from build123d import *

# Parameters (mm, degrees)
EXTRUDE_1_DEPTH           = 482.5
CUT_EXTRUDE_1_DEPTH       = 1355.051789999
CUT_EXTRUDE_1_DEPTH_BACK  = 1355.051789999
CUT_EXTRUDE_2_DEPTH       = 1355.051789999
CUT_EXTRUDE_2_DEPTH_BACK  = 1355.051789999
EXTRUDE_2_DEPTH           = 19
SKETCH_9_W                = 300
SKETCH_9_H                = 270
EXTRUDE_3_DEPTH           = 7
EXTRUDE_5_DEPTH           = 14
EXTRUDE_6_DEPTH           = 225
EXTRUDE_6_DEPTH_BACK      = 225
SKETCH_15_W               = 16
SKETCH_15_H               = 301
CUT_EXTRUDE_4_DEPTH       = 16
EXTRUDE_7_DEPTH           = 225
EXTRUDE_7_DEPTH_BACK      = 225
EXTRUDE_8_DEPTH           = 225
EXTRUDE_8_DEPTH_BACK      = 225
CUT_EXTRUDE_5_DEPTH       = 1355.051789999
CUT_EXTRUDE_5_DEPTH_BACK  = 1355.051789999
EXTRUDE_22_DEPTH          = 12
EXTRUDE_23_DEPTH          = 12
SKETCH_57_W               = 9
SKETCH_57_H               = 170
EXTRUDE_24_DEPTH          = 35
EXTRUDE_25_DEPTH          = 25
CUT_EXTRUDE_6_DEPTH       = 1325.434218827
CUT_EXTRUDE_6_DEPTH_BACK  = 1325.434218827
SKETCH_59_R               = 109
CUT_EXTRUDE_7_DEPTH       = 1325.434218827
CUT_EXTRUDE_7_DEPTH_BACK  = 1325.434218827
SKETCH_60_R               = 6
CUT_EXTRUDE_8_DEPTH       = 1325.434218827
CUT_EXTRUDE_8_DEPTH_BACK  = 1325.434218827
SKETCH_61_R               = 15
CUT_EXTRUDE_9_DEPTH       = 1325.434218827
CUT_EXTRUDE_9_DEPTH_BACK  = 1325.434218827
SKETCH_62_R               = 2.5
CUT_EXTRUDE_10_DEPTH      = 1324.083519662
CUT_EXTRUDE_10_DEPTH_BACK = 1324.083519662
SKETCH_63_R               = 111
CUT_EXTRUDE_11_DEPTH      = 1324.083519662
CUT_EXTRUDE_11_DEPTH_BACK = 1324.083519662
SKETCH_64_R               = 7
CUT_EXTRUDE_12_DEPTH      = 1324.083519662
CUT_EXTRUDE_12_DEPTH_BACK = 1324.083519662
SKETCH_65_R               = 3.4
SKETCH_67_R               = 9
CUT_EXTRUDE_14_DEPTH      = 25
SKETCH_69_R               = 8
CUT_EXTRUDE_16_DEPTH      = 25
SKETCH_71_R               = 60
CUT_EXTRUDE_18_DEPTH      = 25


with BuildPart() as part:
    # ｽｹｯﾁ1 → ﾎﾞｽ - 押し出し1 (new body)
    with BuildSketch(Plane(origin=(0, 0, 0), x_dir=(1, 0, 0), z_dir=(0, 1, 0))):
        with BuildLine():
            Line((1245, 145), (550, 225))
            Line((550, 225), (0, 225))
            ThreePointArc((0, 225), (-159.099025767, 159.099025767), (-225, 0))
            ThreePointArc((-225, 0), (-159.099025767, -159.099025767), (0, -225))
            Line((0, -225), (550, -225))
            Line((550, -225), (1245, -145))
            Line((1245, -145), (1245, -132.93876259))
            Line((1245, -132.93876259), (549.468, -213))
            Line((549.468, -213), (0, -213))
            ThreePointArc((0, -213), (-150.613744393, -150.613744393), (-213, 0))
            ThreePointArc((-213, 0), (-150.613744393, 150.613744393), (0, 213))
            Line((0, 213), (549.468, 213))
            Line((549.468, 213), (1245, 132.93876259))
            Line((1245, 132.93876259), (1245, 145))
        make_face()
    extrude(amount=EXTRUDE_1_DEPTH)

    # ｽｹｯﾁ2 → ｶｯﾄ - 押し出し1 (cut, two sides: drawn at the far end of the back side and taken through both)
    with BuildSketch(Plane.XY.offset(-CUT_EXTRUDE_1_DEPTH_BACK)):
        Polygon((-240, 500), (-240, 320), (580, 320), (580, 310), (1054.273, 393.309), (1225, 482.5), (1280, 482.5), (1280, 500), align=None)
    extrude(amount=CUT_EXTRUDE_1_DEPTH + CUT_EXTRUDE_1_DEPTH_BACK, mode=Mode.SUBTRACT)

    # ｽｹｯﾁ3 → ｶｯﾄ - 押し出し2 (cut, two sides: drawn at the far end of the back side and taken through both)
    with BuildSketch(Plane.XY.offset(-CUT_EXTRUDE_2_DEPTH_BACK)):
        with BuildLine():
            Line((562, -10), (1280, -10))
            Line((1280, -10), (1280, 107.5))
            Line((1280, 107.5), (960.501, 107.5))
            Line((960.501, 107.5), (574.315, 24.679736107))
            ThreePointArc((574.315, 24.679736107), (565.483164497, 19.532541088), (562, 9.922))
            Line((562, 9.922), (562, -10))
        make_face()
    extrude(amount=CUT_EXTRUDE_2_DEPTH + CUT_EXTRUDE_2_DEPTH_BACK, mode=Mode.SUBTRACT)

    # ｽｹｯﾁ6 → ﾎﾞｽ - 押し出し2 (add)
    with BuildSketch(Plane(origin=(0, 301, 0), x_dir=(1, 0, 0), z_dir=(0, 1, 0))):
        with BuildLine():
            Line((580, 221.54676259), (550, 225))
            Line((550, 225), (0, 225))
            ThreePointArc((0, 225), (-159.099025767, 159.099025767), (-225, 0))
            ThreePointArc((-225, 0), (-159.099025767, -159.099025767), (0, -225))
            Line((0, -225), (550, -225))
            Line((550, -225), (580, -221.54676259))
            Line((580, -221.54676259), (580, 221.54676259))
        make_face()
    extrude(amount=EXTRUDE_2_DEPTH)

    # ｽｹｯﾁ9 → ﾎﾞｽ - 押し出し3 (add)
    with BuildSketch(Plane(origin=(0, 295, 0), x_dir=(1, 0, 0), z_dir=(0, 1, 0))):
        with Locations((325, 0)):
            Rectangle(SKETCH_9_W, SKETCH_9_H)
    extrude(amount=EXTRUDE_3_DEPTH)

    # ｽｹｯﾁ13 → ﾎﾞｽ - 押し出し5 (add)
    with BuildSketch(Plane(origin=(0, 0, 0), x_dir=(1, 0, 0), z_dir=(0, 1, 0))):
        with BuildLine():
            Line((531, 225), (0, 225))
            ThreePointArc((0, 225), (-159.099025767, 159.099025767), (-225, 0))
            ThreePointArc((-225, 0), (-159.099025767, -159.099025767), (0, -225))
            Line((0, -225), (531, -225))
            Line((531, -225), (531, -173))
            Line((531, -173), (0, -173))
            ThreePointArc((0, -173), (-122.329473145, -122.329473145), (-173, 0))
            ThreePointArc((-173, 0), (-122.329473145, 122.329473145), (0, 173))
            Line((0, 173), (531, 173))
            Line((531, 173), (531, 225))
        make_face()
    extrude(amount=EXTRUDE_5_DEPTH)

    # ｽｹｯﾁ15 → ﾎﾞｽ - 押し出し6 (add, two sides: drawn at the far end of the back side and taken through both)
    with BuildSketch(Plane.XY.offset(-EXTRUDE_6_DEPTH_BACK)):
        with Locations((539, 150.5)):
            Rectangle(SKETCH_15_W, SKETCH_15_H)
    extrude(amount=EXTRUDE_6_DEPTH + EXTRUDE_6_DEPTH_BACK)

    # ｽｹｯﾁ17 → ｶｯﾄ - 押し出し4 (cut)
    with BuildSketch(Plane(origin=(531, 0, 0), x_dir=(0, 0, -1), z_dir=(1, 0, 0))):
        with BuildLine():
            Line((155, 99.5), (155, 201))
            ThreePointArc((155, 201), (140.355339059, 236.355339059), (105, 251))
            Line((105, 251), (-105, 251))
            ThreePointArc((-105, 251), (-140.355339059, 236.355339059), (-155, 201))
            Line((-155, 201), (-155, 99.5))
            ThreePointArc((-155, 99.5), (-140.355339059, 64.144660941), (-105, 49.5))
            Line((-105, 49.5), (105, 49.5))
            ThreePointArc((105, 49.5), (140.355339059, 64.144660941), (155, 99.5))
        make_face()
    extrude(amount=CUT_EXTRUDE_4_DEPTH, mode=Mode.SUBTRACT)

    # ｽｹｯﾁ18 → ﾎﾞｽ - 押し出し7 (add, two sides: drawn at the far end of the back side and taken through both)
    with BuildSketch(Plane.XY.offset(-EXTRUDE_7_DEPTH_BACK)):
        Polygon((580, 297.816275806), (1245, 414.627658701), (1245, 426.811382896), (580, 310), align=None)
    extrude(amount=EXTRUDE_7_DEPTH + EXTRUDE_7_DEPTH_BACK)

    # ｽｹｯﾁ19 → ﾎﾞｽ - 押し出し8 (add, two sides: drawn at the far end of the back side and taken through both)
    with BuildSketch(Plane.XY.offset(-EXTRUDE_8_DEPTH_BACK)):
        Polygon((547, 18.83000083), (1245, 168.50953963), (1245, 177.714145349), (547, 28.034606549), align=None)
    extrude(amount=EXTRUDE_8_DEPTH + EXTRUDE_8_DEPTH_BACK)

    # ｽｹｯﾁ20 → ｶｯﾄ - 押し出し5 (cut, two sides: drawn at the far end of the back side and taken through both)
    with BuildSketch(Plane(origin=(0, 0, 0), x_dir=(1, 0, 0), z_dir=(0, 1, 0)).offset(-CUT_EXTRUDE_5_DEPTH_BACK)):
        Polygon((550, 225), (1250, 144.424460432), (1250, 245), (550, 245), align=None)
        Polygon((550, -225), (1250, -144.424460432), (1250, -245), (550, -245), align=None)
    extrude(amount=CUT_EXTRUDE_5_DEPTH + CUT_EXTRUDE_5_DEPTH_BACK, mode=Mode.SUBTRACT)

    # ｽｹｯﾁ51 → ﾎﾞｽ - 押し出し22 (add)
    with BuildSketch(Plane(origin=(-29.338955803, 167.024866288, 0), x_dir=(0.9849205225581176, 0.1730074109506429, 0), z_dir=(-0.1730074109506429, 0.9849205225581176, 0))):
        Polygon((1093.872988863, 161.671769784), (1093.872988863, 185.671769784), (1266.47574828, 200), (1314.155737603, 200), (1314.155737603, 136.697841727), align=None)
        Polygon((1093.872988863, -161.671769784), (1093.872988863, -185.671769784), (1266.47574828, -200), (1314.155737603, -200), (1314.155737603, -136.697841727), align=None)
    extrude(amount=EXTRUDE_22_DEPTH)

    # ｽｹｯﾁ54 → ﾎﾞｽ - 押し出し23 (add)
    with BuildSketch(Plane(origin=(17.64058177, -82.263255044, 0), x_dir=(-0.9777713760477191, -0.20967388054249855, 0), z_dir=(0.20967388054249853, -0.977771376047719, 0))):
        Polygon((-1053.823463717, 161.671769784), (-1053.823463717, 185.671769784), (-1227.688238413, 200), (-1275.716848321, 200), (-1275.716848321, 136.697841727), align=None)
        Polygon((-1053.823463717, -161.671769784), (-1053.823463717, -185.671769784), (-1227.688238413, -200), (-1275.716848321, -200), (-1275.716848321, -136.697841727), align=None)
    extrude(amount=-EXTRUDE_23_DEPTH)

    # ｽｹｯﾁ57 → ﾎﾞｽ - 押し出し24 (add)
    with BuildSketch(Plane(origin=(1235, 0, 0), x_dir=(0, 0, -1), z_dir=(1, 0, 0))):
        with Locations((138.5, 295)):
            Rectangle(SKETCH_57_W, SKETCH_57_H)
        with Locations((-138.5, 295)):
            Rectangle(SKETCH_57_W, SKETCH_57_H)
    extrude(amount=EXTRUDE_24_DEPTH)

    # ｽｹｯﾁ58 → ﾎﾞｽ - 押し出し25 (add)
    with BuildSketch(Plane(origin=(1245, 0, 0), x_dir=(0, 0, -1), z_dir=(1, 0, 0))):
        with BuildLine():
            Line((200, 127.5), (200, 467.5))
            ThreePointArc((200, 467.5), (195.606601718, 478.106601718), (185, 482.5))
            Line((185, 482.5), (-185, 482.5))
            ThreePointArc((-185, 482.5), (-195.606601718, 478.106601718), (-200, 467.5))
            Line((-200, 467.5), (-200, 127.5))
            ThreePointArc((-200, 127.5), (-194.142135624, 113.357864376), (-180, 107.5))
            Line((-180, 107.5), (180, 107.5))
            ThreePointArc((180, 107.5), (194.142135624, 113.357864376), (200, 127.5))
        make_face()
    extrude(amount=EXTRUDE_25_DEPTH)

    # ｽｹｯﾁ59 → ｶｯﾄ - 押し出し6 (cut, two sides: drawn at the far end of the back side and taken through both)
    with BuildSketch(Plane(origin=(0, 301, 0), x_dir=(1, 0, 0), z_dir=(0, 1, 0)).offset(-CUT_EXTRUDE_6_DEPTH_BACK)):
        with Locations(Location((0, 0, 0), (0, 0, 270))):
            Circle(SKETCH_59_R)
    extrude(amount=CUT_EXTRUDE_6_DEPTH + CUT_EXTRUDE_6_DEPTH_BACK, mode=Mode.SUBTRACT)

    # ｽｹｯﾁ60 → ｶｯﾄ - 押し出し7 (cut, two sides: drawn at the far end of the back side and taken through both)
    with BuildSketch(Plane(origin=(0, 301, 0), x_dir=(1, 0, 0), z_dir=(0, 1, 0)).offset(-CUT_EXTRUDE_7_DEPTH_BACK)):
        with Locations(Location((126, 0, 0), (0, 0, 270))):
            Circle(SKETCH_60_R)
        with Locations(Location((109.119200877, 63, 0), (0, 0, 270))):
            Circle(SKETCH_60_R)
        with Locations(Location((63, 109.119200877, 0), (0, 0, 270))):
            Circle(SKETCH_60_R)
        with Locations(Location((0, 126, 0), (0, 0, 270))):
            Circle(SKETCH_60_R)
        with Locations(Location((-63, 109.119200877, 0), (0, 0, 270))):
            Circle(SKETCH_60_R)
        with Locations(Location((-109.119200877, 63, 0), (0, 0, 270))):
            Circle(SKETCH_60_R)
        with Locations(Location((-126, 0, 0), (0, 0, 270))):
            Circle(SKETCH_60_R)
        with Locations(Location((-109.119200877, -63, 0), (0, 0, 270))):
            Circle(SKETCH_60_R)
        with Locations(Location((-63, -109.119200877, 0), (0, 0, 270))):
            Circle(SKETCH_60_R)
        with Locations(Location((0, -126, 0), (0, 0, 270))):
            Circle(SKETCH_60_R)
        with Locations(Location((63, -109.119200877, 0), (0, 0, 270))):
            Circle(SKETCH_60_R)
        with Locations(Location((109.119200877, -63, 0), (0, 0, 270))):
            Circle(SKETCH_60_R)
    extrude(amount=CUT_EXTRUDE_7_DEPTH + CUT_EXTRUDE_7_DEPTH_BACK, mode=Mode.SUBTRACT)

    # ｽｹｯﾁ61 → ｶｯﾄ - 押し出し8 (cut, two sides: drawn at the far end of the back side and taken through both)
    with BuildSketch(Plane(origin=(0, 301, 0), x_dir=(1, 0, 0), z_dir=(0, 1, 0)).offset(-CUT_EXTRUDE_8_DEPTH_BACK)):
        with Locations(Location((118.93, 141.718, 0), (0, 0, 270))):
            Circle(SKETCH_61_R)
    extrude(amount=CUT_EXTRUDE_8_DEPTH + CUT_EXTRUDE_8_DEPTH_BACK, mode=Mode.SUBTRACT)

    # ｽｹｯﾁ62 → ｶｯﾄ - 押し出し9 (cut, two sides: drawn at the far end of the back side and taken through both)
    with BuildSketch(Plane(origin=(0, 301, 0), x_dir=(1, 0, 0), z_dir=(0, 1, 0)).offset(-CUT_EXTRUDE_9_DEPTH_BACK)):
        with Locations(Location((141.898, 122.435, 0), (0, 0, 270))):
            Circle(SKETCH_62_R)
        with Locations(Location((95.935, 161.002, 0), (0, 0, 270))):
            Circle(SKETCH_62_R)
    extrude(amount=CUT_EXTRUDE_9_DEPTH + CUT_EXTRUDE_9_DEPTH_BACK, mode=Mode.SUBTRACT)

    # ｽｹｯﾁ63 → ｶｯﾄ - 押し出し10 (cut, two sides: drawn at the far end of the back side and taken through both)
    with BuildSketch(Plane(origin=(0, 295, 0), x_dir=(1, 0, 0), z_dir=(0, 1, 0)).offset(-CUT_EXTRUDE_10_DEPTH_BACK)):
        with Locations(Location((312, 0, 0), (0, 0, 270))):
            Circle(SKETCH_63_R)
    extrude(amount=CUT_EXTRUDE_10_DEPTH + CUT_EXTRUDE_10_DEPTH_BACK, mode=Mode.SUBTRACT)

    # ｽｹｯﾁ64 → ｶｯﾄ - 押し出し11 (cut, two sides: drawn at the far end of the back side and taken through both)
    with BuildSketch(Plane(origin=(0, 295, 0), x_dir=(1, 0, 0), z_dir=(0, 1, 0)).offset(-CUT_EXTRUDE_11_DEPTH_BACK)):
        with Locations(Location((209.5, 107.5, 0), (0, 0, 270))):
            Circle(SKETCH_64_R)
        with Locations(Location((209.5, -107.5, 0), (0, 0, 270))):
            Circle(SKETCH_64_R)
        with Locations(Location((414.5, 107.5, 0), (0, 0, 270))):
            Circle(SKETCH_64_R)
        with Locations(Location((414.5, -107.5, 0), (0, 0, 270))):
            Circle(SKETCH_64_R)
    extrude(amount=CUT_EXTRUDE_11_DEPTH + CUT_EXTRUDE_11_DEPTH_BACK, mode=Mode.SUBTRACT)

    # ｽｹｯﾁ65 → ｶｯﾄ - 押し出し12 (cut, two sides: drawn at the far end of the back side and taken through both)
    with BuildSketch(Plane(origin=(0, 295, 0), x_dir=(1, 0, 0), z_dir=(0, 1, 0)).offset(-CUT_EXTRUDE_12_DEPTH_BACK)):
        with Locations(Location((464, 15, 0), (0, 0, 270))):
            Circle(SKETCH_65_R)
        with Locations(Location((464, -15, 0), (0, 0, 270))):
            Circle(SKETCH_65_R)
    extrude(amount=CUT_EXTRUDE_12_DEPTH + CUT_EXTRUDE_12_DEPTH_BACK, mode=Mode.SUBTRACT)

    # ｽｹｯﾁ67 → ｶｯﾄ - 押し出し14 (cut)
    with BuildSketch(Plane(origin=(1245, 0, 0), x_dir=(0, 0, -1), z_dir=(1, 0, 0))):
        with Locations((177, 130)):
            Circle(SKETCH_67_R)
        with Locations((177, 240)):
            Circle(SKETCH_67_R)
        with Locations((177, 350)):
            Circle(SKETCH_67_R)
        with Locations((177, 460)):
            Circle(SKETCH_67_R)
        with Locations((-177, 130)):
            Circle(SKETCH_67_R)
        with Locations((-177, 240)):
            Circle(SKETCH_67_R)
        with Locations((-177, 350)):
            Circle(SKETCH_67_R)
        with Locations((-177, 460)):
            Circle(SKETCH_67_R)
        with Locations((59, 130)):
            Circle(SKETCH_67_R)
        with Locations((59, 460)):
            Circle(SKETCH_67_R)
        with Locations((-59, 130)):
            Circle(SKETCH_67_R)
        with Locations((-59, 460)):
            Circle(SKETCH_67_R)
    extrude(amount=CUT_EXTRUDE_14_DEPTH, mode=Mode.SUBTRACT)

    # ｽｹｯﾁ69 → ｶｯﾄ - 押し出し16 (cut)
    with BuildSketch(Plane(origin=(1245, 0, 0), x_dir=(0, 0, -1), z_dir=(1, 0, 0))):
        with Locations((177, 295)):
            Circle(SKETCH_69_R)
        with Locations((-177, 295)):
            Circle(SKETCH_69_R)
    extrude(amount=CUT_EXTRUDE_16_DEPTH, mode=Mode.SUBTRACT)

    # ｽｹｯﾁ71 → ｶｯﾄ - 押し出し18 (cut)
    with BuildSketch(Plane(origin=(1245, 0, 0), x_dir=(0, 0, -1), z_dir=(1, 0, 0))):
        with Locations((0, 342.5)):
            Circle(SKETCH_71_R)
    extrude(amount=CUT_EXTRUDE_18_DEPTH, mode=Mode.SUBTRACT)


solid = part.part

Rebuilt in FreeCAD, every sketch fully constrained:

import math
import FreeCAD as App
import Part
import Sketcher
from FreeCAD import Vector


def add_polygon(sketch, points):
    """Adds a closed chain of lines whose ends are joined by coincident constraints."""
    first, n = sketch.GeometryCount, len(points)
    for a, b in zip(points, points[1:] + points[:1]):
        sketch.addGeometry(Part.LineSegment(App.Vector(*a, 0), App.Vector(*b, 0)), False)
    for i in range(n):
        sketch.addConstraint(Sketcher.Constraint("Coincident", first + i, 2, first + (i + 1) % n, 1))

doc = App.newDocument("Part")
body = doc.addObject("PartDesign::Body", "Body")

sketch1 = doc.addObject("Sketcher::SketchObject", "Sketch")
body.addObject(sketch1)
sketch1.AttachmentSupport = (doc.XZ_Plane, [""])
sketch1.MapMode = "FlatFace"
sketch1.addGeometry([
    Part.LineSegment(Vector(1245, -145, 0), Vector(550, -225, 0)),
    Part.LineSegment(Vector(550, -225, 0), Vector(0, -225, 0)),
    Part.ArcOfCircle(Part.Circle(Vector(0, 0, 0), Vector(0, 0, 1), 225), math.radians(90), math.radians(270)),
    Part.LineSegment(Vector(0, 225, 0), Vector(550, 225, 0)),
    Part.LineSegment(Vector(550, 225, 0), Vector(1245, 145, 0)),
    Part.LineSegment(Vector(1245, 145, 0), Vector(1245, 132.938763, 0)),
    Part.LineSegment(Vector(1245, 132.938763, 0), Vector(549.468, 213, 0)),
    Part.LineSegment(Vector(549.468, 213, 0), Vector(0, 213, 0)),
    Part.ArcOfCircle(Part.Circle(Vector(0, 0, 0), Vector(0, 0, 1), 213), math.radians(90), math.radians(180)),
    Part.ArcOfCircle(Part.Circle(Vector(0, 0, 0), Vector(0, 0, 1), 213), math.radians(180), math.radians(270)),
    Part.LineSegment(Vector(0, -213, 0), Vector(549.468, -213, 0)),
    Part.LineSegment(Vector(549.468, -213, 0), Vector(1245, -132.938763, 0)),
    Part.LineSegment(Vector(1245, -132.938763, 0), Vector(1245, -145, 0)),
], False)
sketch1.addConstraint([
    Sketcher.Constraint("Coincident", 0, 2, 1, 1),
    Sketcher.Constraint("Tangent", 1, 2, 2, 2),
    Sketcher.Constraint("Tangent", 2, 1, 3, 1),
    Sketcher.Constraint("Coincident", 3, 2, 4, 1),
    Sketcher.Constraint("Coincident", 4, 2, 5, 1),
    Sketcher.Constraint("Coincident", 5, 2, 6, 1),
    Sketcher.Constraint("Coincident", 6, 2, 7, 1),
    Sketcher.Constraint("Tangent", 7, 2, 8, 1),
    Sketcher.Constraint("Tangent", 8, 2, 9, 1),
    Sketcher.Constraint("Tangent", 9, 2, 10, 1),
    Sketcher.Constraint("Coincident", 10, 2, 11, 1),
    Sketcher.Constraint("Coincident", 11, 2, 12, 1),
    Sketcher.Constraint("Coincident", 12, 2, 0, 1),
    Sketcher.Constraint("Horizontal", 1),
    Sketcher.Constraint("Horizontal", 3),
    Sketcher.Constraint("Vertical", 5),
    Sketcher.Constraint("Horizontal", 7),
    Sketcher.Constraint("Horizontal", 10),
    Sketcher.Constraint("Vertical", 12),
    Sketcher.Constraint("Coincident", 2, 3, -1, 1),
    Sketcher.Constraint("Coincident", 8, 3, -1, 1),
    Sketcher.Constraint("Equal", 8, 9),
    Sketcher.Constraint("Symmetric", 5, 2, 11, 2, -1),
    Sketcher.Constraint("PointOnObject", 8, 2, -1),
    Sketcher.Constraint("Parallel", 4, 6),
    Sketcher.Constraint("Parallel", 0, 11),
    Sketcher.Constraint("Vertical", 0, 2, 3, 2),
    Sketcher.Constraint("Vertical", 6, 2, 10, 2),
    Sketcher.Constraint("Radius", 2, 225.0),
    Sketcher.Constraint("Radius", 8, 213.0),
    Sketcher.Constraint("DistanceX", 1, 2, 1, 1, 550.0),
    Sketcher.Constraint("DistanceX", -1, 1, 4, 2, 1245.0),
    Sketcher.Constraint("DistanceY", -1, 1, 4, 2, 145.0),
    Sketcher.Constraint("DistanceX", 7, 2, 7, 1, 549.468),
])
pad1 = doc.addObject("PartDesign::Pad", "Pad")
body.addObject(pad1)
pad1.Profile = sketch1
pad1.Length = 482.5
pad1.Reversed = True

sketch2 = doc.addObject("Sketcher::SketchObject", "Sketch001")
body.addObject(sketch2)
sketch2.AttachmentSupport = (doc.XY_Plane, [""])
sketch2.MapMode = "FlatFace"
add_polygon(sketch2, [(-240, 500), (-240, 320), (580, 320), (580, 310), (1054.273, 393.309), (1225, 482.5), (1280, 482.5), (1280, 500)])
sketch2.addConstraint([
    Sketcher.Constraint("Vertical", 0),
    Sketcher.Constraint("Horizontal", 1),
    Sketcher.Constraint("Vertical", 2),
    Sketcher.Constraint("Horizontal", 5),
    Sketcher.Constraint("Vertical", 6),
    Sketcher.Constraint("Horizontal", 7),
    Sketcher.Constraint("DistanceX", 1, 1, 1, 2, 820.0),
    Sketcher.Constraint("DistanceX", 5, 1, 5, 2, 55.0),
    Sketcher.Constraint("DistanceX", 7, 2, 7, 1, 1520.0),
    Sketcher.Constraint("DistanceY", 0, 2, 0, 1, 180.0),
    Sketcher.Constraint("DistanceY", 2, 2, 2, 1, 10.0),
    Sketcher.Constraint("DistanceY", 6, 1, 6, 2, 17.5),
    Sketcher.Constraint("DistanceX", 0, 2, -1, 1, 240.0),
    Sketcher.Constraint("DistanceY", -1, 1, 0, 2, 320.0),
    Sketcher.Constraint("DistanceX", -1, 1, 3, 2, 1054.273),
    Sketcher.Constraint("DistanceY", -1, 1, 3, 2, 393.309),
])
pocket1 = doc.addObject("PartDesign::Pocket", "Pocket")
body.addObject(pocket1)
pocket1.Profile = sketch2
pocket1.Type = "ThroughAll"
pocket1.Midplane = True

sketch3 = doc.addObject("Sketcher::SketchObject", "Sketch002")
body.addObject(sketch3)
sketch3.AttachmentSupport = (doc.XY_Plane, [""])
sketch3.MapMode = "FlatFace"
sketch3.addGeometry([
    Part.LineSegment(Vector(562, -10, 0), Vector(1280, -10, 0)),
    Part.LineSegment(Vector(1280, -10, 0), Vector(1280, 107.5, 0)),
    Part.LineSegment(Vector(1280, 107.5, 0), Vector(960.501, 107.5, 0)),
    Part.LineSegment(Vector(960.501, 107.5, 0), Vector(574.315, 24.679736, 0)),
    Part.ArcOfCircle(Part.Circle(Vector(577, 9.922, 0), Vector(0, 0, 1), 15), math.radians(100.311518), math.radians(180)),
    Part.LineSegment(Vector(562, 9.922, 0), Vector(562, -10, 0)),
], False)
sketch3.addConstraint([
    Sketcher.Constraint("Coincident", 0, 2, 1, 1),
    Sketcher.Constraint("Coincident", 1, 2, 2, 1),
    Sketcher.Constraint("Coincident", 2, 2, 3, 1),
    Sketcher.Constraint("Coincident", 3, 2, 4, 1),
    Sketcher.Constraint("Tangent", 4, 2, 5, 1),
    Sketcher.Constraint("Coincident", 5, 2, 0, 1),
    Sketcher.Constraint("Horizontal", 0),
    Sketcher.Constraint("Vertical", 1),
    Sketcher.Constraint("Horizontal", 2),
    Sketcher.Constraint("Vertical", 5),
    Sketcher.Constraint("Radius", 4, 15.0),
    Sketcher.Constraint("DistanceX", 0, 1, 0, 2, 718.0),
    Sketcher.Constraint("DistanceY", 1, 1, 1, 2, 117.5),
    Sketcher.Constraint("DistanceX", -1, 1, 4, 3, 577.0),
    Sketcher.Constraint("DistanceY", 0, 2, -1, 1, 10.0),
    Sketcher.Constraint("DistanceX", 2, 2, 2, 1, 319.499),
    Sketcher.Constraint("DistanceY", 5, 2, 5, 1, 19.922),
    Sketcher.Constraint("DistanceX", -1, 1, 3, 2, 574.315),
])
pocket2 = doc.addObject("PartDesign::Pocket", "Pocket001")
body.addObject(pocket2)
pocket2.Profile = sketch3
pocket2.Type = "ThroughAll"
pocket2.Midplane = True

sketch4 = doc.addObject("Sketcher::SketchObject", "Sketch003")
body.addObject(sketch4)
sketch4.AttachmentSupport = (doc.XZ_Plane, [""])
sketch4.MapMode = "FlatFace"
sketch4.AttachmentOffset = App.Placement(Vector(0, 0, -301), App.Rotation())
sketch4.addGeometry([
    Part.LineSegment(Vector(580, -221.546763, 0), Vector(550, -225, 0)),
    Part.LineSegment(Vector(550, -225, 0), Vector(0, -225, 0)),
    Part.ArcOfCircle(Part.Circle(Vector(0, 0, 0), Vector(0, 0, 1), 225), math.radians(90), math.radians(270)),
    Part.LineSegment(Vector(0, 225, 0), Vector(550, 225, 0)),
    Part.LineSegment(Vector(550, 225, 0), Vector(580, 221.546763, 0)),
    Part.LineSegment(Vector(580, 221.546763, 0), Vector(580, -221.546763, 0)),
], False)
sketch4.addConstraint([
    Sketcher.Constraint("Coincident", 0, 2, 1, 1),
    Sketcher.Constraint("Tangent", 1, 2, 2, 2),
    Sketcher.Constraint("Tangent", 2, 1, 3, 1),
    Sketcher.Constraint("Coincident", 3, 2, 4, 1),
    Sketcher.Constraint("Coincident", 4, 2, 5, 1),
    Sketcher.Constraint("Coincident", 5, 2, 0, 1),
    Sketcher.Constraint("Horizontal", 1),
    Sketcher.Constraint("Horizontal", 3),
    Sketcher.Constraint("Vertical", 5),
    Sketcher.Constraint("Coincident", 2, 3, -1, 1),
    Sketcher.Constraint("Vertical", 0, 2, 3, 2),
    Sketcher.Constraint("Equal", 0, 4),
    Sketcher.Constraint("Radius", 2, 225.0),
    Sketcher.Constraint("DistanceX", 1, 2, 1, 1, 550.0),
    Sketcher.Constraint("DistanceX", -1, 1, 4, 2, 580.0),
    Sketcher.Constraint("DistanceY", 5, 2, 5, 1, 443.093525),
])
pad2 = doc.addObject("PartDesign::Pad", "Pad001")
body.addObject(pad2)
pad2.Profile = sketch4
pad2.Length = 19
pad2.Reversed = True

sketch5 = doc.addObject("Sketcher::SketchObject", "Sketch004")
body.addObject(sketch5)
sketch5.AttachmentSupport = (doc.XZ_Plane, [""])
sketch5.MapMode = "FlatFace"
sketch5.AttachmentOffset = App.Placement(Vector(0, 0, -295), App.Rotation())
add_polygon(sketch5, [(175, -135), (175, 135), (475, 135), (475, -135)])
sketch5.addConstraint([
    Sketcher.Constraint("Vertical", 0),
    Sketcher.Constraint("Horizontal", 1),
    Sketcher.Constraint("Vertical", 2),
    Sketcher.Constraint("Horizontal", 3),
    Sketcher.Constraint("DistanceX", 1, 1, 1, 2, 300.0),
    Sketcher.Constraint("DistanceY", 0, 1, 0, 2, 270.0),
    Sketcher.Constraint("DistanceX", -1, 1, 0, 2, 175.0),
    Sketcher.Constraint("DistanceY", -1, 1, 0, 2, 135.0),
])
pad3 = doc.addObject("PartDesign::Pad", "Pad002")
body.addObject(pad3)
pad3.Profile = sketch5
pad3.Length = 7
pad3.Reversed = True

sketch6 = doc.addObject("Sketcher::SketchObject", "Sketch005")
body.addObject(sketch6)
sketch6.AttachmentSupport = (doc.XZ_Plane, [""])
sketch6.MapMode = "FlatFace"
sketch6.addGeometry([
    Part.LineSegment(Vector(531, -225, 0), Vector(0, -225, 0)),
    Part.ArcOfCircle(Part.Circle(Vector(0, 0, 0), Vector(0, 0, 1), 225), math.radians(90), math.radians(270)),
    Part.LineSegment(Vector(0, 225, 0), Vector(531, 225, 0)),
    Part.LineSegment(Vector(531, 225, 0), Vector(531, 173, 0)),
    Part.LineSegment(Vector(531, 173, 0), Vector(0, 173, 0)),
    Part.ArcOfCircle(Part.Circle(Vector(0, 0, 0), Vector(0, 0, 1), 173), math.radians(90), math.radians(180)),
    Part.ArcOfCircle(Part.Circle(Vector(0, 0, 0), Vector(0, 0, 1), 173), math.radians(-180), math.radians(-90)),
    Part.LineSegment(Vector(0, -173, 0), Vector(531, -173, 0)),
    Part.LineSegment(Vector(531, -173, 0), Vector(531, -225, 0)),
], False)
sketch6.addConstraint([
    Sketcher.Constraint("Tangent", 0, 2, 1, 2),
    Sketcher.Constraint("Tangent", 1, 1, 2, 1),
    Sketcher.Constraint("Coincident", 2, 2, 3, 1),
    Sketcher.Constraint("Coincident", 3, 2, 4, 1),
    Sketcher.Constraint("Tangent", 4, 2, 5, 1),
    Sketcher.Constraint("Tangent", 5, 2, 6, 1),
    Sketcher.Constraint("Tangent", 6, 2, 7, 1),
    Sketcher.Constraint("Coincident", 7, 2, 8, 1),
    Sketcher.Constraint("Coincident", 8, 2, 0, 1),
    Sketcher.Constraint("Horizontal", 0),
    Sketcher.Constraint("Horizontal", 2),
    Sketcher.Constraint("Vertical", 3),
    Sketcher.Constraint("Horizontal", 4),
    Sketcher.Constraint("Horizontal", 7),
    Sketcher.Constraint("Vertical", 8),
    Sketcher.Constraint("Coincident", 1, 3, -1, 1),
    Sketcher.Constraint("Coincident", 5, 3, -1, 1),
    Sketcher.Constraint("Equal", 5, 6),
    Sketcher.Constraint("PointOnObject", 5, 2, -1),
    Sketcher.Constraint("Vertical", 3, 2, 7, 2),
    Sketcher.Constraint("Radius", 1, 225.0),
    Sketcher.Constraint("Radius", 5, 173.0),
    Sketcher.Constraint("DistanceX", 0, 2, 0, 1, 531.0),
])
pad4 = doc.addObject("PartDesign::Pad", "Pad003")
body.addObject(pad4)
pad4.Profile = sketch6
pad4.Length = 14
pad4.Reversed = True

sketch7 = doc.addObject("Sketcher::SketchObject", "Sketch006")
body.addObject(sketch7)
sketch7.AttachmentSupport = (doc.XY_Plane, [""])
sketch7.MapMode = "FlatFace"
add_polygon(sketch7, [(531, 301), (531, 0), (547, 0), (547, 301)])
sketch7.addConstraint([
    Sketcher.Constraint("Vertical", 0),
    Sketcher.Constraint("Horizontal", 1),
    Sketcher.Constraint("Vertical", 2),
    Sketcher.Constraint("Horizontal", 3),
    Sketcher.Constraint("PointOnObject", 0, 2, -1),
    Sketcher.Constraint("DistanceX", 1, 1, 1, 2, 16.0),
    Sketcher.Constraint("DistanceY", 0, 2, 0, 1, 301.0),
    Sketcher.Constraint("DistanceX", -1, 1, 0, 2, 531.0),
])
pad5 = doc.addObject("PartDesign::Pad", "Pad004")
body.addObject(pad5)
pad5.Profile = sketch7
pad5.Type = "TwoLengths"
pad5.Length = 225
pad5.Length2 = 225

sketch8 = doc.addObject("Sketcher::SketchObject", "Sketch007")
body.addObject(sketch8)
sketch8.AttachmentSupport = (doc.YZ_Plane, [""])
sketch8.MapMode = "FlatFace"
sketch8.AttachmentOffset = App.Placement(Vector(0, 0, 531), App.Rotation())
sketch8.addGeometry([
    Part.LineSegment(Vector(99.5, -155, 0), Vector(201, -155, 0)),
    Part.ArcOfCircle(Part.Circle(Vector(201, -105, 0), Vector(0, 0, 1), 50), math.radians(-90), math.radians(0)),
    Part.LineSegment(Vector(251, -105, 0), Vector(251, 105, 0)),
    Part.ArcOfCircle(Part.Circle(Vector(201, 105, 0), Vector(0, 0, 1), 50), math.radians(0), math.radians(90)),
    Part.LineSegment(Vector(201, 155, 0), Vector(99.5, 155, 0)),
    Part.ArcOfCircle(Part.Circle(Vector(99.5, 105, 0), Vector(0, 0, 1), 50), math.radians(90), math.radians(180)),
    Part.LineSegment(Vector(49.5, 105, 0), Vector(49.5, -105, 0)),
    Part.ArcOfCircle(Part.Circle(Vector(99.5, -105, 0), Vector(0, 0, 1), 50), math.radians(-180), math.radians(-90)),
], False)
sketch8.addConstraint([
    Sketcher.Constraint("Tangent", 0, 2, 1, 1),
    Sketcher.Constraint("Tangent", 1, 2, 2, 1),
    Sketcher.Constraint("Tangent", 2, 2, 3, 1),
    Sketcher.Constraint("Tangent", 3, 2, 4, 1),
    Sketcher.Constraint("Tangent", 4, 2, 5, 1),
    Sketcher.Constraint("Tangent", 5, 2, 6, 1),
    Sketcher.Constraint("Tangent", 6, 2, 7, 1),
    Sketcher.Constraint("Tangent", 7, 2, 0, 1),
    Sketcher.Constraint("Horizontal", 0),
    Sketcher.Constraint("Vertical", 2),
    Sketcher.Constraint("Horizontal", 4),
    Sketcher.Constraint("Vertical", 6),
    Sketcher.Constraint("Equal", 1, 3),
    Sketcher.Constraint("Equal", 3, 5),
    Sketcher.Constraint("Equal", 5, 7),
    Sketcher.Constraint("Radius", 1, 50.0),
    Sketcher.Constraint("DistanceY", 2, 1, 2, 2, 210.0),
    Sketcher.Constraint("DistanceX", 0, 1, 0, 2, 101.5),
    Sketcher.Constraint("DistanceX", -1, 1, 1, 3, 201.0),
    Sketcher.Constraint("DistanceY", 1, 3, -1, 1, 105.0),
])
pocket3 = doc.addObject("PartDesign::Pocket", "Pocket002")
body.addObject(pocket3)
pocket3.Profile = sketch8
pocket3.Length = 16
pocket3.Reversed = True

sketch9 = doc.addObject("Sketcher::SketchObject", "Sketch008")
body.addObject(sketch9)
sketch9.AttachmentSupport = (doc.XY_Plane, [""])
sketch9.MapMode = "FlatFace"
add_polygon(sketch9, [(580, 297.816276), (1245, 414.627659), (1245, 426.811383), (580, 310)])
sketch9.addConstraint([
    Sketcher.Constraint("Vertical", 1),
    Sketcher.Constraint("Vertical", 3),
    Sketcher.Constraint("Parallel", 0, 2),
    Sketcher.Constraint("DistanceX", -1, 1, 0, 2, 1245.0),
    Sketcher.Constraint("DistanceX", -1, 1, 2, 2, 580.0),
    Sketcher.Constraint("DistanceY", -1, 1, 2, 2, 310.0),
    Sketcher.Constraint("DistanceY", 1, 1, 1, 2, 12.183724),
    Sketcher.Constraint("DistanceY", -1, 1, 0, 2, 414.627659),
])
pad6 = doc.addObject("PartDesign::Pad", "Pad005")
body.addObject(pad6)
pad6.Profile = sketch9
pad6.Type = "TwoLengths"
pad6.Length = 225
pad6.Length2 = 225

sketch10 = doc.addObject("Sketcher::SketchObject", "Sketch009")
body.addObject(sketch10)
sketch10.AttachmentSupport = (doc.XY_Plane, [""])
sketch10.MapMode = "FlatFace"
add_polygon(sketch10, [(547, 18.830001), (1245, 168.50954), (1245, 177.714145), (547, 28.034607)])
sketch10.addConstraint([
    Sketcher.Constraint("Vertical", 1),
    Sketcher.Constraint("Vertical", 3),
    Sketcher.Constraint("Parallel", 0, 2),
    Sketcher.Constraint("DistanceX", -1, 1, 0, 2, 1245.0),
    Sketcher.Constraint("DistanceX", -1, 1, 2, 2, 547.0),
    Sketcher.Constraint("DistanceY", -1, 1, 3, 2, 18.830001),
    Sketcher.Constraint("Distance", 0, 713.86831),
    Sketcher.Constraint("DistanceY", 1, 1, 1, 2, 9.204606),
])
pad7 = doc.addObject("PartDesign::Pad", "Pad006")
body.addObject(pad7)
pad7.Profile = sketch10
pad7.Type = "TwoLengths"
pad7.Length = 225
pad7.Length2 = 225

sketch11 = doc.addObject("Sketcher::SketchObject", "Sketch010")
body.addObject(sketch11)
sketch11.AttachmentSupport = (doc.XZ_Plane, [""])
sketch11.MapMode = "FlatFace"
add_polygon(sketch11, [(550, -225), (1250, -144.42446), (1250, -245), (550, -245)])
add_polygon(sketch11, [(1250, 144.42446), (550, 225), (550, 245), (1250, 245)])
sketch11.addConstraint([
    Sketcher.Constraint("Vertical", 1),
    Sketcher.Constraint("Horizontal", 2),
    Sketcher.Constraint("Vertical", 3),
    Sketcher.Constraint("Vertical", 5),
    Sketcher.Constraint("Horizontal", 6),
    Sketcher.Constraint("Vertical", 7),
    Sketcher.Constraint("Symmetric", 3, 2, 4, 2, -1),
    Sketcher.Constraint("Symmetric", 1, 2, 6, 2, -1),
    Sketcher.Constraint("Equal", 1, 7),
    Sketcher.Constraint("DistanceX", 2, 2, 2, 1, 700.0),
    Sketcher.Constraint("DistanceY", 3, 1, 3, 2, 20.0),
    Sketcher.Constraint("DistanceX", -1, 1, 0, 2, 1250.0),
    Sketcher.Constraint("DistanceY", 1, 2, -1, 1, 245.0),
    Sketcher.Constraint("DistanceY", 1, 2, 1, 1, 100.57554),
])
pocket4 = doc.addObject("PartDesign::Pocket", "Pocket003")
body.addObject(pocket4)
pocket4.Profile = sketch11
pocket4.Type = "ThroughAll"
pocket4.Midplane = True

sketch12 = doc.addObject("Sketcher::SketchObject", "Sketch011")
body.addObject(sketch12)
sketch12.Placement = App.Placement(Vector(-29.338956, 167.024866, 0), App.Rotation(Vector(0.984920523, 0.173007411, 0), Vector(0, 0, -1.000000001), Vector(-0.173007411, 0.984920523, 0), "ZXY"))
add_polygon(sketch12, [(1093.87299, 185.67177), (1093.87299, 161.67177), (1314.155739, 136.697842), (1314.155739, 200), (1266.475749, 200)])
add_polygon(sketch12, [(1093.87299, -161.67177), (1093.87299, -185.67177), (1266.475749, -200), (1314.155739, -200), (1314.155739, -136.697842)])
sketch12.addConstraint([
    Sketcher.Constraint("Vertical", 0),
    Sketcher.Constraint("Vertical", 2),
    Sketcher.Constraint("Horizontal", 3),
    Sketcher.Constraint("Vertical", 5),
    Sketcher.Constraint("Horizontal", 7),
    Sketcher.Constraint("Vertical", 8),
    Sketcher.Constraint("Symmetric", 4, 2, 5, 2, -1),
    Sketcher.Constraint("Symmetric", 3, 2, 6, 2, -1),
    Sketcher.Constraint("Symmetric", 1, 2, 8, 2, -1),
    Sketcher.Constraint("Equal", 0, 5),
    Sketcher.Constraint("DistanceY", 0, 2, 0, 1, 24.0),
    Sketcher.Constraint("DistanceY", -1, 1, 2, 2, 200.0),
    Sketcher.Constraint("DistanceX", 3, 2, 3, 1, 47.679989),
    Sketcher.Constraint("DistanceY", 2, 1, 2, 2, 63.302158),
    Sketcher.Constraint("Distance", 4, 173.196451),
    Sketcher.Constraint("DistanceX", -1, 1, 0, 2, 1093.87299),
    Sketcher.Constraint("DistanceY", -1, 1, 0, 2, 161.67177),
])
pad8 = doc.addObject("PartDesign::Pad", "Pad007")
body.addObject(pad8)
pad8.Profile = sketch12
pad8.Length = 12

sketch13 = doc.addObject("Sketcher::SketchObject", "Sketch012")
body.addObject(sketch13)
sketch13.Placement = App.Placement(Vector(17.640582, -82.263255, 0), App.Rotation(Vector(-0.977771376, -0.209673881, 0), Vector(0, 0, -1), Vector(0.209673881, -0.977771376, 0), "ZXY"))
add_polygon(sketch13, [(-1053.823464, 161.67177), (-1053.823464, 185.67177), (-1227.688239, 200), (-1275.716848, 200), (-1275.716848, 136.697842)])
add_polygon(sketch13, [(-1053.823464, -185.67177), (-1053.823464, -161.67177), (-1275.716848, -136.697842), (-1275.716848, -200), (-1227.688239, -200)])
sketch13.addConstraint([
    Sketcher.Constraint("Vertical", 0),
    Sketcher.Constraint("Horizontal", 2),
    Sketcher.Constraint("Vertical", 3),
    Sketcher.Constraint("Vertical", 5),
    Sketcher.Constraint("Vertical", 7),
    Sketcher.Constraint("Horizontal", 8),
    Sketcher.Constraint("Symmetric", 4, 2, 5, 2, -1),
    Sketcher.Constraint("Symmetric", 3, 2, 6, 2, -1),
    Sketcher.Constraint("Symmetric", 1, 2, 8, 2, -1),
    Sketcher.Constraint("Equal", 0, 5),
    Sketcher.Constraint("DistanceY", 0, 1, 0, 2, 24.0),
    Sketcher.Constraint("DistanceY", -1, 1, 1, 2, 200.0),
    Sketcher.Constraint("DistanceX", 2, 2, 2, 1, 48.02861),
    Sketcher.Constraint("DistanceY", 3, 2, 3, 1, 63.302158),
    Sketcher.Constraint("Distance", 1, 174.454172),
    Sketcher.Constraint("Distance", 4, 223.29436),
    Sketcher.Constraint("DistanceX", 1, 2, -1, 1, 1227.688239),
])
pad9 = doc.addObject("PartDesign::Pad", "Pad008")
body.addObject(pad9)
pad9.Profile = sketch13
pad9.Length = 12
pad9.Reversed = True

sketch14 = doc.addObject("Sketcher::SketchObject", "Sketch013")
body.addObject(sketch14)
sketch14.AttachmentSupport = (doc.YZ_Plane, [""])
sketch14.MapMode = "FlatFace"
sketch14.AttachmentOffset = App.Placement(Vector(0, 0, 1235), App.Rotation())
add_polygon(sketch14, [(380, -134), (210, -134), (210, -143), (380, -143)])
add_polygon(sketch14, [(380, 143), (210, 143), (210, 134), (380, 134)])
sketch14.addConstraint([
    Sketcher.Constraint("Horizontal", 0),
    Sketcher.Constraint("Vertical", 1),
    Sketcher.Constraint("Horizontal", 2),
    Sketcher.Constraint("Vertical", 3),
    Sketcher.Constraint("Horizontal", 4),
    Sketcher.Constraint("Vertical", 5),
    Sketcher.Constraint("Horizontal", 6),
    Sketcher.Constraint("Vertical", 7),
    Sketcher.Constraint("Symmetric", 1, 2, 4, 2, -1),
    Sketcher.Constraint("Symmetric", 3, 2, 6, 2, -1),
    Sketcher.Constraint("DistanceX", 0, 2, 0, 1, 170.0),
    Sketcher.Constraint("DistanceY", 1, 2, 1, 1, 9.0),
    Sketcher.Constraint("DistanceX", -1, 1, 0, 2, 210.0),
    Sketcher.Constraint("DistanceY", 0, 2, -1, 1, 134.0),
])
pad10 = doc.addObject("PartDesign::Pad", "Pad009")
body.addObject(pad10)
pad10.Profile = sketch14
pad10.Length = 35

sketch15 = doc.addObject("Sketcher::SketchObject", "Sketch014")
body.addObject(sketch15)
sketch15.AttachmentSupport = (doc.YZ_Plane, [""])
sketch15.MapMode = "FlatFace"
sketch15.AttachmentOffset = App.Placement(Vector(0, 0, 1245), App.Rotation())
sketch15.addGeometry([
    Part.LineSegment(Vector(127.5, -200, 0), Vector(467.5, -200, 0)),
    Part.ArcOfCircle(Part.Circle(Vector(467.5, -185, 0), Vector(0, 0, 1), 15), math.radians(-90), math.radians(0)),
    Part.LineSegment(Vector(482.5, -185, 0), Vector(482.5, 185, 0)),
    Part.ArcOfCircle(Part.Circle(Vector(467.5, 185, 0), Vector(0, 0, 1), 15), math.radians(0), math.radians(90)),
    Part.LineSegment(Vector(467.5, 200, 0), Vector(127.5, 200, 0)),
    Part.ArcOfCircle(Part.Circle(Vector(127.5, 180, 0), Vector(0, 0, 1), 20), math.radians(90), math.radians(180)),
    Part.LineSegment(Vector(107.5, 180, 0), Vector(107.5, -180, 0)),
    Part.ArcOfCircle(Part.Circle(Vector(127.5, -180, 0), Vector(0, 0, 1), 20), math.radians(180), math.radians(270)),
], False)
sketch15.addConstraint([
    Sketcher.Constraint("Tangent", 0, 2, 1, 1),
    Sketcher.Constraint("Tangent", 1, 2, 2, 1),
    Sketcher.Constraint("Tangent", 2, 2, 3, 1),
    Sketcher.Constraint("Tangent", 3, 2, 4, 1),
    Sketcher.Constraint("Tangent", 4, 2, 5, 1),
    Sketcher.Constraint("Tangent", 5, 2, 6, 1),
    Sketcher.Constraint("Tangent", 6, 2, 7, 1),
    Sketcher.Constraint("Tangent", 7, 2, 0, 1),
    Sketcher.Constraint("Horizontal", 0),
    Sketcher.Constraint("Vertical", 2),
    Sketcher.Constraint("Horizontal", 4),
    Sketcher.Constraint("Vertical", 6),
    Sketcher.Constraint("Equal", 1, 3),
    Sketcher.Constraint("Equal", 5, 7),
    Sketcher.Constraint("Radius", 1, 15.0),
    Sketcher.Constraint("Radius", 5, 20.0),
    Sketcher.Constraint("DistanceX", 0, 1, 0, 2, 340.0),
    Sketcher.Constraint("DistanceY", 2, 1, 2, 2, 370.0),
    Sketcher.Constraint("DistanceY", 1, 3, -1, 1, 185.0),
    Sketcher.Constraint("DistanceX", -1, 1, 1, 3, 467.5),
])
pad11 = doc.addObject("PartDesign::Pad", "Pad010")
body.addObject(pad11)
pad11.Profile = sketch15
pad11.Length = 25

sketch16 = doc.addObject("Sketcher::SketchObject", "Sketch015")
body.addObject(sketch16)
sketch16.AttachmentSupport = (doc.XZ_Plane, [""])
sketch16.MapMode = "FlatFace"
sketch16.AttachmentOffset = App.Placement(Vector(0, 0, -301), App.Rotation())
sketch16.addGeometry(Part.Circle(Vector(0, 0, 0), Vector(0, 0, 1), 109), False)
sketch16.addConstraint([
    Sketcher.Constraint("Coincident", 0, 3, -1, 1),
    Sketcher.Constraint("Diameter", 0, 218.0),
])
pocket5 = doc.addObject("PartDesign::Pocket", "Pocket004")
body.addObject(pocket5)
pocket5.Profile = sketch16
pocket5.Type = "ThroughAll"
pocket5.Midplane = True

sketch17 = doc.addObject("Sketcher::SketchObject", "Sketch016")
body.addObject(sketch17)
sketch17.AttachmentSupport = (doc.XZ_Plane, [""])
sketch17.MapMode = "FlatFace"
sketch17.AttachmentOffset = App.Placement(Vector(0, 0, -301), App.Rotation())
sketch17.addGeometry([
    Part.Circle(Vector(126, 0, 0), Vector(0, 0, 1), 6),
    Part.Circle(Vector(109.119201, -63, 0), Vector(0, 0, 1), 6),
    Part.Circle(Vector(63, -109.119201, 0), Vector(0, 0, 1), 6),
    Part.Circle(Vector(0, -126, 0), Vector(0, 0, 1), 6),
    Part.Circle(Vector(-63, -109.119201, 0), Vector(0, 0, 1), 6),
    Part.Circle(Vector(-109.119201, -63, 0), Vector(0, 0, 1), 6),
    Part.Circle(Vector(-126, 0, 0), Vector(0, 0, 1), 6),
    Part.Circle(Vector(-109.119201, 63, 0), Vector(0, 0, 1), 6),
    Part.Circle(Vector(-63, 109.119201, 0), Vector(0, 0, 1), 6),
    Part.Circle(Vector(0, 126, 0), Vector(0, 0, 1), 6),
    Part.Circle(Vector(63, 109.119201, 0), Vector(0, 0, 1), 6),
    Part.Circle(Vector(109.119201, 63, 0), Vector(0, 0, 1), 6),
], False)
sketch17.addConstraint([
    Sketcher.Constraint("Equal", 0, 1),
    Sketcher.Constraint("Equal", 1, 2),
    Sketcher.Constraint("Equal", 2, 3),
    Sketcher.Constraint("Equal", 3, 4),
    Sketcher.Constraint("Equal", 4, 5),
    Sketcher.Constraint("Equal", 5, 6),
    Sketcher.Constraint("Equal", 6, 7),
    Sketcher.Constraint("Equal", 7, 8),
    Sketcher.Constraint("Equal", 8, 9),
    Sketcher.Constraint("Equal", 9, 10),
    Sketcher.Constraint("Equal", 10, 11),
    Sketcher.Constraint("Symmetric", 0, 3, 6, 3, -1, 1),
    Sketcher.Constraint("Symmetric", 1, 3, 7, 3, -1, 1),
    Sketcher.Constraint("Symmetric", 2, 3, 8, 3, -1, 1),
    Sketcher.Constraint("Symmetric", 3, 3, 9, 3, -1, 1),
    Sketcher.Constraint("Symmetric", 4, 3, 10, 3, -1, 1),
    Sketcher.Constraint("Symmetric", 5, 3, 11, 3, -1, 1),
    Sketcher.Constraint("Symmetric", 2, 3, 4, 3, -2),
    Sketcher.Constraint("Symmetric", 1, 3, 5, 3, -2),
    Sketcher.Constraint("PointOnObject", 0, 3, -1),
    Sketcher.Constraint("PointOnObject", 3, 3, -2),
    Sketcher.Constraint("Diameter", 0, 12.0),
    Sketcher.Constraint("DistanceX", -1, 1, 0, 3, 126.0),
    Sketcher.Constraint("DistanceY", 1, 3, -1, 1, 63.0),
    Sketcher.Constraint("DistanceX", -1, 1, 2, 3, 63.0),
    Sketcher.Constraint("DistanceY", 3, 3, -1, 1, 126.0),
    Sketcher.Constraint("DistanceX", -1, 1, 1, 3, 109.119201),
    Sketcher.Constraint("DistanceY", 2, 3, -1, 1, 109.119201),
])
pocket6 = doc.addObject("PartDesign::Pocket", "Pocket005")
body.addObject(pocket6)
pocket6.Profile = sketch17
pocket6.Type = "ThroughAll"
pocket6.Midplane = True

sketch18 = doc.addObject("Sketcher::SketchObject", "Sketch017")
body.addObject(sketch18)
sketch18.AttachmentSupport = (doc.XZ_Plane, [""])
sketch18.MapMode = "FlatFace"
sketch18.AttachmentOffset = App.Placement(Vector(0, 0, -301), App.Rotation())
sketch18.addGeometry(Part.Circle(Vector(118.93, -141.718, 0), Vector(0, 0, 1), 15), False)
sketch18.addConstraint([
    Sketcher.Constraint("Diameter", 0, 30.0),
    Sketcher.Constraint("DistanceX", -1, 1, 0, 3, 118.93),
    Sketcher.Constraint("DistanceY", 0, 3, -1, 1, 141.718),
])
pocket7 = doc.addObject("PartDesign::Pocket", "Pocket006")
body.addObject(pocket7)
pocket7.Profile = sketch18
pocket7.Type = "ThroughAll"
pocket7.Midplane = True

sketch19 = doc.addObject("Sketcher::SketchObject", "Sketch018")
body.addObject(sketch19)
sketch19.AttachmentSupport = (doc.XZ_Plane, [""])
sketch19.MapMode = "FlatFace"
sketch19.AttachmentOffset = App.Placement(Vector(0, 0, -301), App.Rotation())
sketch19.addGeometry([
    Part.Circle(Vector(141.898, -122.435, 0), Vector(0, 0, 1), 2.5),
    Part.Circle(Vector(95.935, -161.002, 0), Vector(0, 0, 1), 2.5),
], False)
sketch19.addConstraint([
    Sketcher.Constraint("Equal", 0, 1),
    Sketcher.Constraint("Diameter", 0, 5.0),
    Sketcher.Constraint("DistanceX", -1, 1, 0, 3, 141.898),
    Sketcher.Constraint("DistanceY", 0, 3, -1, 1, 122.435),
    Sketcher.Constraint("DistanceX", -1, 1, 1, 3, 95.935),
    Sketcher.Constraint("DistanceY", 1, 3, -1, 1, 161.002),
])
pocket8 = doc.addObject("PartDesign::Pocket", "Pocket007")
body.addObject(pocket8)
pocket8.Profile = sketch19
pocket8.Type = "ThroughAll"
pocket8.Midplane = True

sketch20 = doc.addObject("Sketcher::SketchObject", "Sketch019")
body.addObject(sketch20)
sketch20.AttachmentSupport = (doc.XZ_Plane, [""])
sketch20.MapMode = "FlatFace"
sketch20.AttachmentOffset = App.Placement(Vector(0, 0, -295), App.Rotation())
sketch20.addGeometry(Part.Circle(Vector(312, 0, 0), Vector(0, 0, 1), 111), False)
sketch20.addConstraint([
    Sketcher.Constraint("PointOnObject", 0, 3, -1),
    Sketcher.Constraint("Diameter", 0, 222.0),
    Sketcher.Constraint("DistanceX", -1, 1, 0, 3, 312.0),
])
pocket9 = doc.addObject("PartDesign::Pocket", "Pocket008")
body.addObject(pocket9)
pocket9.Profile = sketch20
pocket9.Type = "ThroughAll"
pocket9.Midplane = True

sketch21 = doc.addObject("Sketcher::SketchObject", "Sketch020")
body.addObject(sketch21)
sketch21.AttachmentSupport = (doc.XZ_Plane, [""])
sketch21.MapMode = "FlatFace"
sketch21.AttachmentOffset = App.Placement(Vector(0, 0, -295), App.Rotation())
sketch21.addGeometry([
    Part.Circle(Vector(209.5, -107.5, 0), Vector(0, 0, 1), 7),
    Part.Circle(Vector(209.5, 107.5, 0), Vector(0, 0, 1), 7),
    Part.Circle(Vector(414.5, -107.5, 0), Vector(0, 0, 1), 7),
    Part.Circle(Vector(414.5, 107.5, 0), Vector(0, 0, 1), 7),
], False)
sketch21.addConstraint([
    Sketcher.Constraint("Equal", 0, 1),
    Sketcher.Constraint("Equal", 1, 2),
    Sketcher.Constraint("Equal", 2, 3),
    Sketcher.Constraint("Symmetric", 0, 3, 1, 3, -1),
    Sketcher.Constraint("Symmetric", 2, 3, 3, 3, -1),
    Sketcher.Constraint("Horizontal", 0, 3, 2, 3),
    Sketcher.Constraint("Diameter", 0, 14.0),
    Sketcher.Constraint("DistanceY", 0, 3, 1, 3, 215.0),
    Sketcher.Constraint("DistanceX", 0, 3, 2, 3, 205.0),
    Sketcher.Constraint("DistanceX", -1, 1, 0, 3, 209.5),
])
pocket10 = doc.addObject("PartDesign::Pocket", "Pocket009")
body.addObject(pocket10)
pocket10.Profile = sketch21
pocket10.Type = "ThroughAll"
pocket10.Midplane = True

sketch22 = doc.addObject("Sketcher::SketchObject", "Sketch021")
body.addObject(sketch22)
sketch22.AttachmentSupport = (doc.XZ_Plane, [""])
sketch22.MapMode = "FlatFace"
sketch22.AttachmentOffset = App.Placement(Vector(0, 0, -295), App.Rotation())
sketch22.addGeometry([
    Part.Circle(Vector(464, -15, 0), Vector(0, 0, 1), 3.4),
    Part.Circle(Vector(464, 15, 0), Vector(0, 0, 1), 3.4),
], False)
sketch22.addConstraint([
    Sketcher.Constraint("Equal", 0, 1),
    Sketcher.Constraint("Symmetric", 0, 3, 1, 3, -1),
    Sketcher.Constraint("Diameter", 0, 6.8),
    Sketcher.Constraint("DistanceX", -1, 1, 0, 3, 464.0),
    Sketcher.Constraint("DistanceY", 0, 3, -1, 1, 15.0),
])
pocket11 = doc.addObject("PartDesign::Pocket", "Pocket010")
body.addObject(pocket11)
pocket11.Profile = sketch22
pocket11.Type = "ThroughAll"
pocket11.Midplane = True

sketch23 = doc.addObject("Sketcher::SketchObject", "Sketch022")
body.addObject(sketch23)
sketch23.AttachmentSupport = (doc.YZ_Plane, [""])
sketch23.MapMode = "FlatFace"
sketch23.AttachmentOffset = App.Placement(Vector(0, 0, 1245), App.Rotation())
sketch23.addGeometry([
    Part.Circle(Vector(130, -177, 0), Vector(0, 0, 1), 9),
    Part.Circle(Vector(240, -177, 0), Vector(0, 0, 1), 9),
    Part.Circle(Vector(350, -177, 0), Vector(0, 0, 1), 9),
    Part.Circle(Vector(460, -177, 0), Vector(0, 0, 1), 9),
    Part.Circle(Vector(130, 177, 0), Vector(0, 0, 1), 9),
    Part.Circle(Vector(240, 177, 0), Vector(0, 0, 1), 9),
    Part.Circle(Vector(350, 177, 0), Vector(0, 0, 1), 9),
    Part.Circle(Vector(460, 177, 0), Vector(0, 0, 1), 9),
    Part.Circle(Vector(130, -59, 0), Vector(0, 0, 1), 9),
    Part.Circle(Vector(460, -59, 0), Vector(0, 0, 1), 9),
    Part.Circle(Vector(130, 59, 0), Vector(0, 0, 1), 9),
    Part.Circle(Vector(460, 59, 0), Vector(0, 0, 1), 9),
], False)
sketch23.addConstraint([
    Sketcher.Constraint("Equal", 0, 1),
    Sketcher.Constraint("Equal", 1, 2),
    Sketcher.Constraint("Equal", 2, 3),
    Sketcher.Constraint("Equal", 3, 4),
    Sketcher.Constraint("Equal", 4, 5),
    Sketcher.Constraint("Equal", 5, 6),
    Sketcher.Constraint("Equal", 6, 7),
    Sketcher.Constraint("Equal", 7, 8),
    Sketcher.Constraint("Equal", 8, 9),
    Sketcher.Constraint("Equal", 9, 10),
    Sketcher.Constraint("Equal", 10, 11),
    Sketcher.Constraint("Symmetric", 0, 3, 4, 3, -1),
    Sketcher.Constraint("Symmetric", 1, 3, 5, 3, -1),
    Sketcher.Constraint("Symmetric", 2, 3, 6, 3, -1),
    Sketcher.Constraint("Symmetric", 3, 3, 7, 3, -1),
    Sketcher.Constraint("Symmetric", 8, 3, 10, 3, -1),
    Sketcher.Constraint("Symmetric", 9, 3, 11, 3, -1),
    Sketcher.Constraint("Horizontal", 0, 3, 1, 3),
    Sketcher.Constraint("Horizontal", 1, 3, 2, 3),
    Sketcher.Constraint("Horizontal", 2, 3, 3, 3),
    Sketcher.Constraint("Horizontal", 8, 3, 9, 3),
    Sketcher.Constraint("Vertical", 4, 3, 8, 3),
    Sketcher.Constraint("Vertical", 7, 3, 9, 3),
    Sketcher.Constraint("Diameter", 0, 18.0),
    Sketcher.Constraint("DistanceX", -1, 1, 0, 3, 130.0),
    Sketcher.Constraint("DistanceY", 0, 3, -1, 1, 177.0),
    Sketcher.Constraint("DistanceX", -1, 1, 1, 3, 240.0),
    Sketcher.Constraint("DistanceX", -1, 1, 2, 3, 350.0),
    Sketcher.Constraint("DistanceX", -1, 1, 3, 3, 460.0),
    Sketcher.Constraint("DistanceY", 8, 3, -1, 1, 59.0),
])
pocket12 = doc.addObject("PartDesign::Pocket", "Pocket011")
body.addObject(pocket12)
pocket12.Profile = sketch23
pocket12.Length = 25
pocket12.Reversed = True

sketch24 = doc.addObject("Sketcher::SketchObject", "Sketch023")
body.addObject(sketch24)
sketch24.AttachmentSupport = (doc.YZ_Plane, [""])
sketch24.MapMode = "FlatFace"
sketch24.AttachmentOffset = App.Placement(Vector(0, 0, 1245), App.Rotation())
sketch24.addGeometry([
    Part.Circle(Vector(295, -177, 0), Vector(0, 0, 1), 8),
    Part.Circle(Vector(295, 177, 0), Vector(0, 0, 1), 8),
], False)
sketch24.addConstraint([
    Sketcher.Constraint("Equal", 0, 1),
    Sketcher.Constraint("Symmetric", 0, 3, 1, 3, -1),
    Sketcher.Constraint("Diameter", 0, 16.0),
    Sketcher.Constraint("DistanceX", -1, 1, 0, 3, 295.0),
    Sketcher.Constraint("DistanceY", 0, 3, -1, 1, 177.0),
])
pocket13 = doc.addObject("PartDesign::Pocket", "Pocket012")
body.addObject(pocket13)
pocket13.Profile = sketch24
pocket13.Length = 25
pocket13.Reversed = True

sketch25 = doc.addObject("Sketcher::SketchObject", "Sketch024")
body.addObject(sketch25)
sketch25.AttachmentSupport = (doc.YZ_Plane, [""])
sketch25.MapMode = "FlatFace"
sketch25.AttachmentOffset = App.Placement(Vector(0, 0, 1245), App.Rotation())
sketch25.addGeometry(Part.Circle(Vector(342.5, 0, 0), Vector(0, 0, 1), 60), False)
sketch25.addConstraint([
    Sketcher.Constraint("PointOnObject", 0, 3, -1),
    Sketcher.Constraint("Diameter", 0, 120.0),
    Sketcher.Constraint("DistanceX", -1, 1, 0, 3, 342.5),
])
pocket14 = doc.addObject("PartDesign::Pocket", "Pocket013")
body.addObject(pocket14)
pocket14.Profile = sketch25
pocket14.Length = 25
pocket14.Reversed = True

doc.recompute()
